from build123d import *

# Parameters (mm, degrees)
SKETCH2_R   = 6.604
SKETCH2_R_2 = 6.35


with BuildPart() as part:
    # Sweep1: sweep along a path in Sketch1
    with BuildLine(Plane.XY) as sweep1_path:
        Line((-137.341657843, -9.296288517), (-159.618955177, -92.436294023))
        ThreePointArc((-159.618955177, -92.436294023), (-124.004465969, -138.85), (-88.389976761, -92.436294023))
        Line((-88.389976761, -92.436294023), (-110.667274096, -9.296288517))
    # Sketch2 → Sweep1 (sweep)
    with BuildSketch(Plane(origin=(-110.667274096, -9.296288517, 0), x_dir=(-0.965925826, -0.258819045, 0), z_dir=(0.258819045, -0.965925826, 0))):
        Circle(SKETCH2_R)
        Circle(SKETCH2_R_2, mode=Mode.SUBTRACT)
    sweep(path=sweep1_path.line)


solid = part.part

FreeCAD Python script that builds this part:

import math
import FreeCAD as App
import Part
import Sketcher
Q = App.Units.Quantity

doc = App.newDocument("Part")
body = doc.addObject("PartDesign::Body", "Body")

# Sketch on an angled plane
sketch1 = body.newObject("Sketcher::SketchObject", "Sketch")
sketch1.Placement = App.Placement(App.Vector(-110.667274, -9.296289, 0), App.Rotation(App.Vector(-0.965925826, -0.258819045, 0), App.Vector(0, 0, -0.999999999), App.Vector(0.258819045, -0.965925826, 0), "ZXY"))
sketch1.addGeometry(Part.Circle(App.Vector(0, 0, 0), App.Vector(0, 0, 1), 6.604), False)
sketch1.addGeometry(Part.Circle(App.Vector(0, 0, 0), App.Vector(0, 0, 1), 6.35), False)
sketch1.addConstraint(Sketcher.Constraint("Coincident", 0, 3, -1, 1))
sketch1.addConstraint(Sketcher.Constraint("Coincident", 1, 3, -1, 1))
sketch1.addConstraint(Sketcher.Constraint("Diameter", 1, Q("0.5 in")))
sketch1.addConstraint(Sketcher.Constraint("Diameter", 0, Q("0.52 in")))

# Sketch on XY plane
sketch2 = body.newObject("Sketcher::SketchObject", "Sketch001")
sketch2.AttachmentSupport = (doc.getObject("XY_Plane"), [""])
sketch2.MapMode = "FlatFace"
sketch2.addGeometry(Part.LineSegment(App.Vector(-137.341658, -9.296289, 0), App.Vector(-159.618955, -92.436294, 0)), False)
sketch2.addGeometry(Part.ArcOfCircle(Part.Circle(App.Vector(-124.004466, -101.979168, 0), App.Vector(0, 0, 1), 36.870832), math.radians(165), math.radians(375)), False)
sketch2.addGeometry(Part.LineSegment(App.Vector(-88.389977, -92.436294, 0), App.Vector(-110.667274, -9.296289, 0)), False)
sketch2.addConstraint(Sketcher.Constraint("Tangent", 0, 2, 1, 1))
sketch2.addConstraint(Sketcher.Constraint("Tangent", 1, 2, 2, 1))
sketch2.addConstraint(Sketcher.Constraint("Horizontal", 0, 2, 1, 2))
sketch2.addConstraint(Sketcher.Constraint("Horizontal", 0, 1, 2, 2))
sketch2.addConstraint(Sketcher.Constraint("Angle", 0, Q("-105 deg")))
sketch2.addConstraint(Sketcher.Constraint("Radius", 1, Q("36.870832 mm")))
sketch2.addConstraint(Sketcher.Constraint("DistanceY", 0, 1, -1, 1, Q("9.296289 mm")))
sketch2.addConstraint(Sketcher.Constraint("DistanceX", 0, 1, 1, 3, Q("13.337192 mm")))
sketch2.addConstraint(Sketcher.Constraint("DistanceX", 1, 3, -1, 1, Q("124.004466 mm")))
doc.recompute()

additivepipe = body.newObject("PartDesign::AdditivePipe", "AdditivePipe")
additivepipe.Profile = sketch1
additivepipe.Spine = (sketch2, ["Edge1", "Edge2", "Edge3"])

doc.recompute()
